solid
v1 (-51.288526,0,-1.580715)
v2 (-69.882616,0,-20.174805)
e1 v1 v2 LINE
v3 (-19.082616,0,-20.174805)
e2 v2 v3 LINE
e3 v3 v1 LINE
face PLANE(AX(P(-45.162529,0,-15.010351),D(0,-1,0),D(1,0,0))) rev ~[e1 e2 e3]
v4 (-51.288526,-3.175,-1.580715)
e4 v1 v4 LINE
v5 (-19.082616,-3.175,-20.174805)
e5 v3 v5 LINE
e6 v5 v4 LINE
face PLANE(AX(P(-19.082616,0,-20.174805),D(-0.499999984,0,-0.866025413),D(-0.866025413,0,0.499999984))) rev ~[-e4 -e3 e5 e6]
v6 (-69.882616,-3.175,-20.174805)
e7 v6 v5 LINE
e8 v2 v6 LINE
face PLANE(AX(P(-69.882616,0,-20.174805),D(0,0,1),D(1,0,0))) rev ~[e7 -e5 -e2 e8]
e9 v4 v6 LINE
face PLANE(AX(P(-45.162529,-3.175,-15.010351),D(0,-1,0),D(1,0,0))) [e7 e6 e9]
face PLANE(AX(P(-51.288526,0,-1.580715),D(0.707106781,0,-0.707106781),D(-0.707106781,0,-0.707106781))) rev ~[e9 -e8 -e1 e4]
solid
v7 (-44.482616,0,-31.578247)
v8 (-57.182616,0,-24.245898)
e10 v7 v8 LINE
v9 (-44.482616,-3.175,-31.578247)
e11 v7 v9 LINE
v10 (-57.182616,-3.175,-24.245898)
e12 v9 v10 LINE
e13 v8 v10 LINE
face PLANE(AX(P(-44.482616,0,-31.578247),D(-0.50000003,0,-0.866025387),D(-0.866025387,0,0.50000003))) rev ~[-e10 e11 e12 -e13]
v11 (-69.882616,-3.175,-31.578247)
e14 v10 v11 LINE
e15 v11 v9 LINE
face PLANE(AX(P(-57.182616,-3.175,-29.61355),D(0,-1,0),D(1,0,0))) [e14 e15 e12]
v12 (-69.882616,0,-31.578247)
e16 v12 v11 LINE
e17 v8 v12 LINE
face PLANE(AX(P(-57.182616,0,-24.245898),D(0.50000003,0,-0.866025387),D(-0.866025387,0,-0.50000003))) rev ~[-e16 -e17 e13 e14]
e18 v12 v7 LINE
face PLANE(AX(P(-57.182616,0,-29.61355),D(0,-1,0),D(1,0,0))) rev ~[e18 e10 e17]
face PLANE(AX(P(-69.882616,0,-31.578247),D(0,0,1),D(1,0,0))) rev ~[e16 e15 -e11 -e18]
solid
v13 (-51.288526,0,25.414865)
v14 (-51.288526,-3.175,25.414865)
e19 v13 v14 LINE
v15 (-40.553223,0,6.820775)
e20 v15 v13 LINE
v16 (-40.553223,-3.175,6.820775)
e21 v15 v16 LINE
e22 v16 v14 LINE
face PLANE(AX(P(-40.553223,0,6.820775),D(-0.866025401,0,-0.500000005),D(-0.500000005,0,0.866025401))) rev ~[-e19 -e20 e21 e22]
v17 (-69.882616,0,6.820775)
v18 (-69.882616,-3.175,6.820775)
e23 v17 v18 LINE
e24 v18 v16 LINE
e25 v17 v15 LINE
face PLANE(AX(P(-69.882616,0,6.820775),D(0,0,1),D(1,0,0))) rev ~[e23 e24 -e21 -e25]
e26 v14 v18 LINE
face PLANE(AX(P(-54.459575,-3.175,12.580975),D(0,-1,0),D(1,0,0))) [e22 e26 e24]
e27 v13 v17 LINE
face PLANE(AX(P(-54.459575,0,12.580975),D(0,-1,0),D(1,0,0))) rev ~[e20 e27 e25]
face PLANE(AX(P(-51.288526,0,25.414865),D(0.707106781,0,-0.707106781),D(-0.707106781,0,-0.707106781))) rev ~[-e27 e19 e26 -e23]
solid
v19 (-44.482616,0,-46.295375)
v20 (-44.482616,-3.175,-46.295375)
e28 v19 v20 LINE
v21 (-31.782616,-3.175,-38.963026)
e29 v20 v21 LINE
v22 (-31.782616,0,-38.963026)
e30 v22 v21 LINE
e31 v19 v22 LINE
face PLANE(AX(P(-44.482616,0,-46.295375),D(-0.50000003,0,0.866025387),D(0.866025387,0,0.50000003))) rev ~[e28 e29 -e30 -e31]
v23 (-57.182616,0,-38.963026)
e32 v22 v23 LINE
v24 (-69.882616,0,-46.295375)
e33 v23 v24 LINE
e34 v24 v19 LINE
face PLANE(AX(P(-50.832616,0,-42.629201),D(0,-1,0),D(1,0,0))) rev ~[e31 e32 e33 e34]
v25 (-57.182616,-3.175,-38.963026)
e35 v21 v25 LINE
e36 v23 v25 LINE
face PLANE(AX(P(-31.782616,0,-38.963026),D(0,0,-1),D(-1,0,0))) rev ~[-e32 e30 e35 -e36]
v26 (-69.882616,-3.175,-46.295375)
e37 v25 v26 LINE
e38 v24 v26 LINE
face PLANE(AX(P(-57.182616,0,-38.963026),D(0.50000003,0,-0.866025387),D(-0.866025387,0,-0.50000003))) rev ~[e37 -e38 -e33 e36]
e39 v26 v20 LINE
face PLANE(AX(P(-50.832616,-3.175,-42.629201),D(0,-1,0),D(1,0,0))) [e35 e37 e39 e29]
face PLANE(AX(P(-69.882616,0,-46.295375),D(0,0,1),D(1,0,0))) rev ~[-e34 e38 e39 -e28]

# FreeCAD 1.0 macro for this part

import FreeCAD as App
import Part
import Sketcher

V = App.Vector
Q = App.Units.Quantity

doc = App.newDocument("Part")
body = doc.addObject("PartDesign::Body", "Body")

sketch1 = body.newObject("Sketcher::SketchObject", "Sketch")
sketch1.AttachmentSupport = (doc.getObject("XZ_Plane"), [""])
sketch1.MapMode = "FlatFace"
sketch1.addGeometry([
    Part.LineSegment(V(-51, -2, 0), V(-70, -20, 0)),
    Part.LineSegment(V(-70, -20, 0), V(-19, -20, 0)),
    Part.LineSegment(V(-19, -20, 0), V(-51, -2, 0)),
], False)
sketch1.addConstraint([
    Sketcher.Constraint("Coincident", 0, 2, 1, 1),
    Sketcher.Constraint("Coincident", 1, 2, 2, 1),
    Sketcher.Constraint("Coincident", 2, 2, 0, 1),
    Sketcher.Constraint("Horizontal", 1),
    Sketcher.Constraint("DistanceX", 1, 1, 1, 2, Q("2 in")),
    Sketcher.Constraint("Angle", 0, Q("-135 deg")),
    Sketcher.Constraint("Angle", 2, Q("150.000001 deg")),
    Sketcher.Constraint("DistanceX", 0, 2, -1, 1, 69.882616),
    Sketcher.Constraint("DistanceY", 0, 2, -1, 1, 20.174805),
])
pad1 = body.newObject("PartDesign::Pad", "Pad")
pad1.Profile = sketch1
pad1.Length = Q("0.125 in")
body2 = doc.addObject("PartDesign::Body", "Body001")

sketch2 = body2.newObject("Sketcher::SketchObject", "Sketch001")
sketch2.AttachmentSupport = (doc.getObject("XZ_Plane001"), [""])
sketch2.MapMode = "FlatFace"
sketch2.addGeometry([
    Part.LineSegment(V(-57, -24, 0), V(-70, -32, 0)),
    Part.LineSegment(V(-70, -32, 0), V(-44, -32, 0)),
    Part.LineSegment(V(-44, -32, 0), V(-57, -24, 0)),
], False)
sketch2.addConstraint([
    Sketcher.Constraint("Coincident", 0, 2, 1, 1),
    Sketcher.Constraint("Coincident", 1, 2, 2, 1),
    Sketcher.Constraint("Coincident", 2, 2, 0, 1),
    Sketcher.Constraint("Horizontal", 1),
    Sketcher.Constraint("Equal", 0, 2),
    Sketcher.Constraint("DistanceX", 1, 1, 1, 2, Q("1 in")),
    Sketcher.Constraint("Angle", 0, Q("-149.999998 deg")),
    Sketcher.Constraint("DistanceY", 2, 2, -1, 1, 24.245898),
    Sketcher.Constraint("DistanceX", 0, 2, -1, 1, 69.882616),
])
pad2 = body2.newObject("PartDesign::Pad", "Pad001")
pad2.Profile = sketch2
pad2.Length = Q("0.125 in")
body3 = doc.addObject("PartDesign::Body", "Body002")

sketch3 = body3.newObject("Sketcher::SketchObject", "Sketch002")
sketch3.AttachmentSupport = (doc.getObject("XZ_Plane002"), [""])
sketch3.MapMode = "FlatFace"
sketch3.addGeometry([
    Part.LineSegment(V(-57, -39, 0), V(-70, -46, 0)),
    Part.LineSegment(V(-70, -46, 0), V(-44, -46, 0)),
    Part.LineSegment(V(-44, -46, 0), V(-32, -39, 0)),
    Part.LineSegment(V(-32, -39, 0), V(-57, -39, 0)),
], False)
sketch3.addConstraint([
    Sketcher.Constraint("Coincident", 0, 2, 1, 1),
    Sketcher.Constraint("Coincident", 1, 2, 2, 1),
    Sketcher.Constraint("Coincident", 2, 2, 3, 1),
    Sketcher.Constraint("Coincident", 3, 2, 0, 1),
    Sketcher.Constraint("Horizontal", 1),
    Sketcher.Constraint("Horizontal", 3),
    Sketcher.Constraint("Parallel", 0, 2),
    Sketcher.Constraint("DistanceX", 1, 1, 1, 2, Q("1 in")),
    Sketcher.Constraint("Angle", 0, Q("-149.999998 deg")),
    Sketcher.Constraint("DistanceX", 1, 2, 2, 2, Q("0.5 in")),
    Sketcher.Constraint("DistanceX", 0, 2, -1, 1, 69.882616),
    Sketcher.Constraint("DistanceY", 0, 2, -1, 1, 46.295375),
])
pad3 = body3.newObject("PartDesign::Pad", "Pad002")
pad3.Profile = sketch3
pad3.Length = Q("0.125 in")
body4 = doc.addObject("PartDesign::Body", "Body003")

sketch4 = body4.newObject("Sketcher::SketchObject", "Sketch003")
sketch4.AttachmentSupport = (doc.getObject("XZ_Plane003"), [""])
sketch4.MapMode = "FlatFace"
sketch4.addGeometry([
    Part.LineSegment(V(-51, 25, 0), V(-70, 7, 0)),
    Part.LineSegment(V(-70, 7, 0), V(-41, 7, 0)),
    Part.LineSegment(V(-41, 7, 0), V(-51, 25, 0)),
], False)
sketch4.addConstraint([
    Sketcher.Constraint("Coincident", 0, 2, 1, 1),
    Sketcher.Constraint("Coincident", 1, 2, 2, 1),
    Sketcher.Constraint("Coincident", 2, 2, 0, 1),
    Sketcher.Constraint("Horizontal", 1),
    Sketcher.Constraint("Angle", 0, Q("-135 deg")),
    Sketcher.Constraint("Angle", 2, Q("120 deg")),
    Sketcher.Constraint("DistanceX", 1, 1, 1, 2, 29.329393),
    Sketcher.Constraint("DistanceX", 0, 2, -1, 1, 69.882616),
    Sketcher.Constraint("DistanceY", -1, 1, 0, 2, 6.820775),
])
pad4 = body4.newObject("PartDesign::Pad", "Pad003")
pad4.Profile = sketch4
pad4.Length = Q("0.125 in")

doc.recompute()
